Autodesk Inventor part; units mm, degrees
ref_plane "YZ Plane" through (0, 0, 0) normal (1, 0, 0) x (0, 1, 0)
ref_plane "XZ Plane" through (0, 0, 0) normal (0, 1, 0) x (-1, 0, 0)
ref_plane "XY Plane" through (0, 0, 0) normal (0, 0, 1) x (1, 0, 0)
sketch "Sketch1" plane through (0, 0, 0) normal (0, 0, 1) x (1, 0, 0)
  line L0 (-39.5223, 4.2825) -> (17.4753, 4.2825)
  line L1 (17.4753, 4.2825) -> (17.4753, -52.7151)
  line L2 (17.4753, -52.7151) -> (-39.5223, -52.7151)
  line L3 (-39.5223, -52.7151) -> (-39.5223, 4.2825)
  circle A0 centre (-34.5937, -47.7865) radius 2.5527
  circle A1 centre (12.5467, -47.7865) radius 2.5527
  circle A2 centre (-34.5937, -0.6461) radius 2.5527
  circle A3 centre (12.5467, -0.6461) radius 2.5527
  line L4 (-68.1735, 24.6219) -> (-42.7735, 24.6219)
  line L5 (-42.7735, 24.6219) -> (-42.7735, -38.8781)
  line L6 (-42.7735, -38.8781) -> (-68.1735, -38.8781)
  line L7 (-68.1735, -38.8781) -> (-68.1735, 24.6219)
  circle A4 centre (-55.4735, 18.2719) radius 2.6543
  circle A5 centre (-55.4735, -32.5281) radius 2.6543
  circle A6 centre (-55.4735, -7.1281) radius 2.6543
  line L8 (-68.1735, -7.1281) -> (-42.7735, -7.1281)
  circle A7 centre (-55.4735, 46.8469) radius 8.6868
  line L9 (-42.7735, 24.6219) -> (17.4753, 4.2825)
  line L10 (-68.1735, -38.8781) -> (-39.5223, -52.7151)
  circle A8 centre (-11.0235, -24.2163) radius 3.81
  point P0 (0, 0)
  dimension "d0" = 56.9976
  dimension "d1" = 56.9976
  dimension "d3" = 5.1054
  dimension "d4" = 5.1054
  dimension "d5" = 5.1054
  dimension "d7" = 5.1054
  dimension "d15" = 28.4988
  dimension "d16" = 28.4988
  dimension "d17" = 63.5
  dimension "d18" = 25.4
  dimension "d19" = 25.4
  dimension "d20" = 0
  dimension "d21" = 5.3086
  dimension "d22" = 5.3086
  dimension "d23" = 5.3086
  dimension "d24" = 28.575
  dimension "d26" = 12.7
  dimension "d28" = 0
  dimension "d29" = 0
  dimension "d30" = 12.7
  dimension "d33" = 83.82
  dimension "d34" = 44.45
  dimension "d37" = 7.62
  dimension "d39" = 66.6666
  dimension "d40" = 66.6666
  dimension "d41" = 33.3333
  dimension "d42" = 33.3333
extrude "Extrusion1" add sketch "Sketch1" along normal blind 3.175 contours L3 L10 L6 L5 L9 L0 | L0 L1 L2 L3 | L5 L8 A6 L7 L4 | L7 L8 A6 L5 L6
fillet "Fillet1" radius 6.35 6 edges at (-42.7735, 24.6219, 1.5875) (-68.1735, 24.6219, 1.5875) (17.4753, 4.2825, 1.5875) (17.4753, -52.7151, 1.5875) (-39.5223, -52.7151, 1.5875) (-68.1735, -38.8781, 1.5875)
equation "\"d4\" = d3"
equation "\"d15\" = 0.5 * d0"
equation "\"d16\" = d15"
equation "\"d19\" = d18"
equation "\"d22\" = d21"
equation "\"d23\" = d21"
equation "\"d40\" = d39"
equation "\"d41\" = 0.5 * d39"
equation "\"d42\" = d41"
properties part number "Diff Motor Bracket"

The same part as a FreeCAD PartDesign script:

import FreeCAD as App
import Part
import Sketcher

V = App.Vector
Q = App.Units.Quantity


def edges_at(feature, points):
    """Names of the edges that pass closest to the given points."""
    edges = feature.Shape.Edges
    near = lambda p: min(range(len(edges)), key=lambda i: edges[i].distToShape(Part.Vertex(*p))[0])
    return sorted({f"Edge{near(p) + 1}" for p in points})


def add_polygon(sketch, points):
    """Adds a closed chain of lines whose ends are joined by coincident constraints."""
    first, n = sketch.GeometryCount, len(points)
    for a, b in zip(points, points[1:] + points[:1]):
        sketch.addGeometry(Part.LineSegment(App.Vector(*a, 0), App.Vector(*b, 0)), False)
    for i in range(n):
        sketch.addConstraint(Sketcher.Constraint("Coincident", first + i, 2, first + (i + 1) % n, 1))

doc = App.newDocument("Part")
body = doc.addObject("PartDesign::Body", "Body")

# Sketch on XY plane
sketch1 = body.newObject("Sketcher::SketchObject", "Sketch")
sketch1.AttachmentSupport = (doc.getObject("XY_Plane"), [""])
sketch1.MapMode = "FlatFace"
add_polygon(sketch1, [(-68.2, -38.9), (-39.5, -52.7), (17.5, -52.7), (17.5, 4.3), (-42.8, 24.6), (-68.2, 24.6)])  # lines 0-5
sketch1.addGeometry(Part.Circle(V(-11, -24.2, 0), V(0, 0, 1), 3.8), False)  # 6
sketch1.addGeometry(Part.Circle(V(12.5, -0.6, 0), V(0, 0, 1), 2.6), False)  # 7
sketch1.addGeometry(Part.Circle(V(-34.6, -47.8, 0), V(0, 0, 1), 2.6), False)  # 8
sketch1.addGeometry(Part.Circle(V(-34.6, -0.6, 0), V(0, 0, 1), 2.6), False)  # 9
sketch1.addGeometry(Part.Circle(V(12.5, -47.8, 0), V(0, 0, 1), 2.6), False)  # 10
sketch1.addGeometry(Part.Circle(V(-55.5, -7.1, 0), V(0, 0, 1), 2.7), False)  # 11
sketch1.addGeometry(Part.Circle(V(-55.5, -32.5, 0), V(0, 0, 1), 2.7), False)  # 12
sketch1.addGeometry(Part.Circle(V(-55.5, 18.3, 0), V(0, 0, 1), 2.7), False)  # 13
sketch1.addConstraint(Sketcher.Constraint("Horizontal", 1))
sketch1.addConstraint(Sketcher.Constraint("Vertical", 2))
sketch1.addConstraint(Sketcher.Constraint("Horizontal", 4))
sketch1.addConstraint(Sketcher.Constraint("Vertical", 5))
sketch1.addConstraint(Sketcher.Constraint("Equal", 7, 8))
sketch1.addConstraint(Sketcher.Constraint("Equal", 8, 9))
sketch1.addConstraint(Sketcher.Constraint("Equal", 9, 10))
sketch1.addConstraint(Sketcher.Constraint("Equal", 11, 12))
sketch1.addConstraint(Sketcher.Constraint("Equal", 12, 13))
sketch1.addConstraint(Sketcher.Constraint("Horizontal", 7, 3, 9, 3))
sketch1.addConstraint(Sketcher.Constraint("Horizontal", 8, 3, 10, 3))
sketch1.addConstraint(Sketcher.Constraint("Vertical", 8, 3, 9, 3))
sketch1.addConstraint(Sketcher.Constraint("Vertical", 7, 3, 10, 3))
sketch1.addConstraint(Sketcher.Constraint("Vertical", 11, 3, 12, 3))
sketch1.addConstraint(Sketcher.Constraint("Vertical", 12, 3, 13, 3))
sketch1.addConstraint(Sketcher.Constraint("Equal", 1, 2))
sketch1.addConstraint(Sketcher.Constraint("Diameter", 6, Q("0.3 in")))
sketch1.addConstraint(Sketcher.Constraint("DistanceX", 4, 2, 4, 1, Q("1 in")))
sketch1.addConstraint(Sketcher.Constraint("Diameter", 7, Q("0.201 in")))
sketch1.addConstraint(Sketcher.Constraint("Diameter", 11, Q("0.209 in")))
sketch1.addConstraint(Sketcher.Constraint("DistanceY", 5, 2, 5, 1, Q("2.5 in")))
sketch1.addConstraint(Sketcher.Constraint("DistanceY", 12, 3, 11, 3, Q("1 in")))
sketch1.addConstraint(Sketcher.Constraint("DistanceY", 11, 3, 13, 3, Q("1 in")))
sketch1.addConstraint(Sketcher.Constraint("DistanceX", 13, 3, 3, 2, Q("0.5 in")))
sketch1.addConstraint(Sketcher.Constraint("DistanceX", 1, 1, 1, 2, Q("2.244 in")))
sketch1.addConstraint(Sketcher.Constraint("DistanceX", 11, 3, 6, 3, Q("1.75 in")))
sketch1.addConstraint(Sketcher.Constraint("DistanceX", 0, 2, 6, 3, Q("1.122 in")))
sketch1.addConstraint(Sketcher.Constraint("DistanceY", 0, 2, 6, 3, Q("1.122 in")))
sketch1.addConstraint(Sketcher.Constraint("DistanceY", 13, 3, 3, 2, Q("0.25 in")))
sketch1.addConstraint(Sketcher.Constraint("DistanceX", 6, 3, -1, 1, Q("0.434 in")))
sketch1.addConstraint(Sketcher.Constraint("DistanceY", 6, 3, -1, 1, Q("0.9534 in")))
sketch1.addConstraint(Sketcher.Constraint("DistanceY", 11, 3, 9, 3, Q("0.2552 in")))
sketch1.addConstraint(Sketcher.Constraint("Distance", 0, Q("31.8175 mm")))
sketch1.addConstraint(Sketcher.Constraint("DistanceX", -1, 1, 7, 3, Q("12.5467 mm")))
sketch1.addConstraint(Sketcher.Constraint("DistanceX", 8, 3, -1, 1, Q("34.5937 mm")))
sketch1.addConstraint(Sketcher.Constraint("DistanceY", 8, 3, -1, 1, Q("47.7865 mm")))
pad1 = body.newObject("PartDesign::Pad", "Pad")
pad1.Profile = sketch1
pad1.Length = Q("0.125 in")
doc.recompute()

fillet = body.newObject("PartDesign::Fillet", "Fillet")
fillet.Base = (pad1, edges_at(pad1, [
    (-42.773, 24.622, 1.587),
    (-68.174, 24.622, 1.587),
    (17.475, 4.282, 1.587),
    (17.475, -52.715, 1.587),
    (-39.522, -52.715, 1.587),
    (-68.174, -38.878, 1.587),
]))
fillet.Radius = Q("0.25 in")

doc.recompute()
